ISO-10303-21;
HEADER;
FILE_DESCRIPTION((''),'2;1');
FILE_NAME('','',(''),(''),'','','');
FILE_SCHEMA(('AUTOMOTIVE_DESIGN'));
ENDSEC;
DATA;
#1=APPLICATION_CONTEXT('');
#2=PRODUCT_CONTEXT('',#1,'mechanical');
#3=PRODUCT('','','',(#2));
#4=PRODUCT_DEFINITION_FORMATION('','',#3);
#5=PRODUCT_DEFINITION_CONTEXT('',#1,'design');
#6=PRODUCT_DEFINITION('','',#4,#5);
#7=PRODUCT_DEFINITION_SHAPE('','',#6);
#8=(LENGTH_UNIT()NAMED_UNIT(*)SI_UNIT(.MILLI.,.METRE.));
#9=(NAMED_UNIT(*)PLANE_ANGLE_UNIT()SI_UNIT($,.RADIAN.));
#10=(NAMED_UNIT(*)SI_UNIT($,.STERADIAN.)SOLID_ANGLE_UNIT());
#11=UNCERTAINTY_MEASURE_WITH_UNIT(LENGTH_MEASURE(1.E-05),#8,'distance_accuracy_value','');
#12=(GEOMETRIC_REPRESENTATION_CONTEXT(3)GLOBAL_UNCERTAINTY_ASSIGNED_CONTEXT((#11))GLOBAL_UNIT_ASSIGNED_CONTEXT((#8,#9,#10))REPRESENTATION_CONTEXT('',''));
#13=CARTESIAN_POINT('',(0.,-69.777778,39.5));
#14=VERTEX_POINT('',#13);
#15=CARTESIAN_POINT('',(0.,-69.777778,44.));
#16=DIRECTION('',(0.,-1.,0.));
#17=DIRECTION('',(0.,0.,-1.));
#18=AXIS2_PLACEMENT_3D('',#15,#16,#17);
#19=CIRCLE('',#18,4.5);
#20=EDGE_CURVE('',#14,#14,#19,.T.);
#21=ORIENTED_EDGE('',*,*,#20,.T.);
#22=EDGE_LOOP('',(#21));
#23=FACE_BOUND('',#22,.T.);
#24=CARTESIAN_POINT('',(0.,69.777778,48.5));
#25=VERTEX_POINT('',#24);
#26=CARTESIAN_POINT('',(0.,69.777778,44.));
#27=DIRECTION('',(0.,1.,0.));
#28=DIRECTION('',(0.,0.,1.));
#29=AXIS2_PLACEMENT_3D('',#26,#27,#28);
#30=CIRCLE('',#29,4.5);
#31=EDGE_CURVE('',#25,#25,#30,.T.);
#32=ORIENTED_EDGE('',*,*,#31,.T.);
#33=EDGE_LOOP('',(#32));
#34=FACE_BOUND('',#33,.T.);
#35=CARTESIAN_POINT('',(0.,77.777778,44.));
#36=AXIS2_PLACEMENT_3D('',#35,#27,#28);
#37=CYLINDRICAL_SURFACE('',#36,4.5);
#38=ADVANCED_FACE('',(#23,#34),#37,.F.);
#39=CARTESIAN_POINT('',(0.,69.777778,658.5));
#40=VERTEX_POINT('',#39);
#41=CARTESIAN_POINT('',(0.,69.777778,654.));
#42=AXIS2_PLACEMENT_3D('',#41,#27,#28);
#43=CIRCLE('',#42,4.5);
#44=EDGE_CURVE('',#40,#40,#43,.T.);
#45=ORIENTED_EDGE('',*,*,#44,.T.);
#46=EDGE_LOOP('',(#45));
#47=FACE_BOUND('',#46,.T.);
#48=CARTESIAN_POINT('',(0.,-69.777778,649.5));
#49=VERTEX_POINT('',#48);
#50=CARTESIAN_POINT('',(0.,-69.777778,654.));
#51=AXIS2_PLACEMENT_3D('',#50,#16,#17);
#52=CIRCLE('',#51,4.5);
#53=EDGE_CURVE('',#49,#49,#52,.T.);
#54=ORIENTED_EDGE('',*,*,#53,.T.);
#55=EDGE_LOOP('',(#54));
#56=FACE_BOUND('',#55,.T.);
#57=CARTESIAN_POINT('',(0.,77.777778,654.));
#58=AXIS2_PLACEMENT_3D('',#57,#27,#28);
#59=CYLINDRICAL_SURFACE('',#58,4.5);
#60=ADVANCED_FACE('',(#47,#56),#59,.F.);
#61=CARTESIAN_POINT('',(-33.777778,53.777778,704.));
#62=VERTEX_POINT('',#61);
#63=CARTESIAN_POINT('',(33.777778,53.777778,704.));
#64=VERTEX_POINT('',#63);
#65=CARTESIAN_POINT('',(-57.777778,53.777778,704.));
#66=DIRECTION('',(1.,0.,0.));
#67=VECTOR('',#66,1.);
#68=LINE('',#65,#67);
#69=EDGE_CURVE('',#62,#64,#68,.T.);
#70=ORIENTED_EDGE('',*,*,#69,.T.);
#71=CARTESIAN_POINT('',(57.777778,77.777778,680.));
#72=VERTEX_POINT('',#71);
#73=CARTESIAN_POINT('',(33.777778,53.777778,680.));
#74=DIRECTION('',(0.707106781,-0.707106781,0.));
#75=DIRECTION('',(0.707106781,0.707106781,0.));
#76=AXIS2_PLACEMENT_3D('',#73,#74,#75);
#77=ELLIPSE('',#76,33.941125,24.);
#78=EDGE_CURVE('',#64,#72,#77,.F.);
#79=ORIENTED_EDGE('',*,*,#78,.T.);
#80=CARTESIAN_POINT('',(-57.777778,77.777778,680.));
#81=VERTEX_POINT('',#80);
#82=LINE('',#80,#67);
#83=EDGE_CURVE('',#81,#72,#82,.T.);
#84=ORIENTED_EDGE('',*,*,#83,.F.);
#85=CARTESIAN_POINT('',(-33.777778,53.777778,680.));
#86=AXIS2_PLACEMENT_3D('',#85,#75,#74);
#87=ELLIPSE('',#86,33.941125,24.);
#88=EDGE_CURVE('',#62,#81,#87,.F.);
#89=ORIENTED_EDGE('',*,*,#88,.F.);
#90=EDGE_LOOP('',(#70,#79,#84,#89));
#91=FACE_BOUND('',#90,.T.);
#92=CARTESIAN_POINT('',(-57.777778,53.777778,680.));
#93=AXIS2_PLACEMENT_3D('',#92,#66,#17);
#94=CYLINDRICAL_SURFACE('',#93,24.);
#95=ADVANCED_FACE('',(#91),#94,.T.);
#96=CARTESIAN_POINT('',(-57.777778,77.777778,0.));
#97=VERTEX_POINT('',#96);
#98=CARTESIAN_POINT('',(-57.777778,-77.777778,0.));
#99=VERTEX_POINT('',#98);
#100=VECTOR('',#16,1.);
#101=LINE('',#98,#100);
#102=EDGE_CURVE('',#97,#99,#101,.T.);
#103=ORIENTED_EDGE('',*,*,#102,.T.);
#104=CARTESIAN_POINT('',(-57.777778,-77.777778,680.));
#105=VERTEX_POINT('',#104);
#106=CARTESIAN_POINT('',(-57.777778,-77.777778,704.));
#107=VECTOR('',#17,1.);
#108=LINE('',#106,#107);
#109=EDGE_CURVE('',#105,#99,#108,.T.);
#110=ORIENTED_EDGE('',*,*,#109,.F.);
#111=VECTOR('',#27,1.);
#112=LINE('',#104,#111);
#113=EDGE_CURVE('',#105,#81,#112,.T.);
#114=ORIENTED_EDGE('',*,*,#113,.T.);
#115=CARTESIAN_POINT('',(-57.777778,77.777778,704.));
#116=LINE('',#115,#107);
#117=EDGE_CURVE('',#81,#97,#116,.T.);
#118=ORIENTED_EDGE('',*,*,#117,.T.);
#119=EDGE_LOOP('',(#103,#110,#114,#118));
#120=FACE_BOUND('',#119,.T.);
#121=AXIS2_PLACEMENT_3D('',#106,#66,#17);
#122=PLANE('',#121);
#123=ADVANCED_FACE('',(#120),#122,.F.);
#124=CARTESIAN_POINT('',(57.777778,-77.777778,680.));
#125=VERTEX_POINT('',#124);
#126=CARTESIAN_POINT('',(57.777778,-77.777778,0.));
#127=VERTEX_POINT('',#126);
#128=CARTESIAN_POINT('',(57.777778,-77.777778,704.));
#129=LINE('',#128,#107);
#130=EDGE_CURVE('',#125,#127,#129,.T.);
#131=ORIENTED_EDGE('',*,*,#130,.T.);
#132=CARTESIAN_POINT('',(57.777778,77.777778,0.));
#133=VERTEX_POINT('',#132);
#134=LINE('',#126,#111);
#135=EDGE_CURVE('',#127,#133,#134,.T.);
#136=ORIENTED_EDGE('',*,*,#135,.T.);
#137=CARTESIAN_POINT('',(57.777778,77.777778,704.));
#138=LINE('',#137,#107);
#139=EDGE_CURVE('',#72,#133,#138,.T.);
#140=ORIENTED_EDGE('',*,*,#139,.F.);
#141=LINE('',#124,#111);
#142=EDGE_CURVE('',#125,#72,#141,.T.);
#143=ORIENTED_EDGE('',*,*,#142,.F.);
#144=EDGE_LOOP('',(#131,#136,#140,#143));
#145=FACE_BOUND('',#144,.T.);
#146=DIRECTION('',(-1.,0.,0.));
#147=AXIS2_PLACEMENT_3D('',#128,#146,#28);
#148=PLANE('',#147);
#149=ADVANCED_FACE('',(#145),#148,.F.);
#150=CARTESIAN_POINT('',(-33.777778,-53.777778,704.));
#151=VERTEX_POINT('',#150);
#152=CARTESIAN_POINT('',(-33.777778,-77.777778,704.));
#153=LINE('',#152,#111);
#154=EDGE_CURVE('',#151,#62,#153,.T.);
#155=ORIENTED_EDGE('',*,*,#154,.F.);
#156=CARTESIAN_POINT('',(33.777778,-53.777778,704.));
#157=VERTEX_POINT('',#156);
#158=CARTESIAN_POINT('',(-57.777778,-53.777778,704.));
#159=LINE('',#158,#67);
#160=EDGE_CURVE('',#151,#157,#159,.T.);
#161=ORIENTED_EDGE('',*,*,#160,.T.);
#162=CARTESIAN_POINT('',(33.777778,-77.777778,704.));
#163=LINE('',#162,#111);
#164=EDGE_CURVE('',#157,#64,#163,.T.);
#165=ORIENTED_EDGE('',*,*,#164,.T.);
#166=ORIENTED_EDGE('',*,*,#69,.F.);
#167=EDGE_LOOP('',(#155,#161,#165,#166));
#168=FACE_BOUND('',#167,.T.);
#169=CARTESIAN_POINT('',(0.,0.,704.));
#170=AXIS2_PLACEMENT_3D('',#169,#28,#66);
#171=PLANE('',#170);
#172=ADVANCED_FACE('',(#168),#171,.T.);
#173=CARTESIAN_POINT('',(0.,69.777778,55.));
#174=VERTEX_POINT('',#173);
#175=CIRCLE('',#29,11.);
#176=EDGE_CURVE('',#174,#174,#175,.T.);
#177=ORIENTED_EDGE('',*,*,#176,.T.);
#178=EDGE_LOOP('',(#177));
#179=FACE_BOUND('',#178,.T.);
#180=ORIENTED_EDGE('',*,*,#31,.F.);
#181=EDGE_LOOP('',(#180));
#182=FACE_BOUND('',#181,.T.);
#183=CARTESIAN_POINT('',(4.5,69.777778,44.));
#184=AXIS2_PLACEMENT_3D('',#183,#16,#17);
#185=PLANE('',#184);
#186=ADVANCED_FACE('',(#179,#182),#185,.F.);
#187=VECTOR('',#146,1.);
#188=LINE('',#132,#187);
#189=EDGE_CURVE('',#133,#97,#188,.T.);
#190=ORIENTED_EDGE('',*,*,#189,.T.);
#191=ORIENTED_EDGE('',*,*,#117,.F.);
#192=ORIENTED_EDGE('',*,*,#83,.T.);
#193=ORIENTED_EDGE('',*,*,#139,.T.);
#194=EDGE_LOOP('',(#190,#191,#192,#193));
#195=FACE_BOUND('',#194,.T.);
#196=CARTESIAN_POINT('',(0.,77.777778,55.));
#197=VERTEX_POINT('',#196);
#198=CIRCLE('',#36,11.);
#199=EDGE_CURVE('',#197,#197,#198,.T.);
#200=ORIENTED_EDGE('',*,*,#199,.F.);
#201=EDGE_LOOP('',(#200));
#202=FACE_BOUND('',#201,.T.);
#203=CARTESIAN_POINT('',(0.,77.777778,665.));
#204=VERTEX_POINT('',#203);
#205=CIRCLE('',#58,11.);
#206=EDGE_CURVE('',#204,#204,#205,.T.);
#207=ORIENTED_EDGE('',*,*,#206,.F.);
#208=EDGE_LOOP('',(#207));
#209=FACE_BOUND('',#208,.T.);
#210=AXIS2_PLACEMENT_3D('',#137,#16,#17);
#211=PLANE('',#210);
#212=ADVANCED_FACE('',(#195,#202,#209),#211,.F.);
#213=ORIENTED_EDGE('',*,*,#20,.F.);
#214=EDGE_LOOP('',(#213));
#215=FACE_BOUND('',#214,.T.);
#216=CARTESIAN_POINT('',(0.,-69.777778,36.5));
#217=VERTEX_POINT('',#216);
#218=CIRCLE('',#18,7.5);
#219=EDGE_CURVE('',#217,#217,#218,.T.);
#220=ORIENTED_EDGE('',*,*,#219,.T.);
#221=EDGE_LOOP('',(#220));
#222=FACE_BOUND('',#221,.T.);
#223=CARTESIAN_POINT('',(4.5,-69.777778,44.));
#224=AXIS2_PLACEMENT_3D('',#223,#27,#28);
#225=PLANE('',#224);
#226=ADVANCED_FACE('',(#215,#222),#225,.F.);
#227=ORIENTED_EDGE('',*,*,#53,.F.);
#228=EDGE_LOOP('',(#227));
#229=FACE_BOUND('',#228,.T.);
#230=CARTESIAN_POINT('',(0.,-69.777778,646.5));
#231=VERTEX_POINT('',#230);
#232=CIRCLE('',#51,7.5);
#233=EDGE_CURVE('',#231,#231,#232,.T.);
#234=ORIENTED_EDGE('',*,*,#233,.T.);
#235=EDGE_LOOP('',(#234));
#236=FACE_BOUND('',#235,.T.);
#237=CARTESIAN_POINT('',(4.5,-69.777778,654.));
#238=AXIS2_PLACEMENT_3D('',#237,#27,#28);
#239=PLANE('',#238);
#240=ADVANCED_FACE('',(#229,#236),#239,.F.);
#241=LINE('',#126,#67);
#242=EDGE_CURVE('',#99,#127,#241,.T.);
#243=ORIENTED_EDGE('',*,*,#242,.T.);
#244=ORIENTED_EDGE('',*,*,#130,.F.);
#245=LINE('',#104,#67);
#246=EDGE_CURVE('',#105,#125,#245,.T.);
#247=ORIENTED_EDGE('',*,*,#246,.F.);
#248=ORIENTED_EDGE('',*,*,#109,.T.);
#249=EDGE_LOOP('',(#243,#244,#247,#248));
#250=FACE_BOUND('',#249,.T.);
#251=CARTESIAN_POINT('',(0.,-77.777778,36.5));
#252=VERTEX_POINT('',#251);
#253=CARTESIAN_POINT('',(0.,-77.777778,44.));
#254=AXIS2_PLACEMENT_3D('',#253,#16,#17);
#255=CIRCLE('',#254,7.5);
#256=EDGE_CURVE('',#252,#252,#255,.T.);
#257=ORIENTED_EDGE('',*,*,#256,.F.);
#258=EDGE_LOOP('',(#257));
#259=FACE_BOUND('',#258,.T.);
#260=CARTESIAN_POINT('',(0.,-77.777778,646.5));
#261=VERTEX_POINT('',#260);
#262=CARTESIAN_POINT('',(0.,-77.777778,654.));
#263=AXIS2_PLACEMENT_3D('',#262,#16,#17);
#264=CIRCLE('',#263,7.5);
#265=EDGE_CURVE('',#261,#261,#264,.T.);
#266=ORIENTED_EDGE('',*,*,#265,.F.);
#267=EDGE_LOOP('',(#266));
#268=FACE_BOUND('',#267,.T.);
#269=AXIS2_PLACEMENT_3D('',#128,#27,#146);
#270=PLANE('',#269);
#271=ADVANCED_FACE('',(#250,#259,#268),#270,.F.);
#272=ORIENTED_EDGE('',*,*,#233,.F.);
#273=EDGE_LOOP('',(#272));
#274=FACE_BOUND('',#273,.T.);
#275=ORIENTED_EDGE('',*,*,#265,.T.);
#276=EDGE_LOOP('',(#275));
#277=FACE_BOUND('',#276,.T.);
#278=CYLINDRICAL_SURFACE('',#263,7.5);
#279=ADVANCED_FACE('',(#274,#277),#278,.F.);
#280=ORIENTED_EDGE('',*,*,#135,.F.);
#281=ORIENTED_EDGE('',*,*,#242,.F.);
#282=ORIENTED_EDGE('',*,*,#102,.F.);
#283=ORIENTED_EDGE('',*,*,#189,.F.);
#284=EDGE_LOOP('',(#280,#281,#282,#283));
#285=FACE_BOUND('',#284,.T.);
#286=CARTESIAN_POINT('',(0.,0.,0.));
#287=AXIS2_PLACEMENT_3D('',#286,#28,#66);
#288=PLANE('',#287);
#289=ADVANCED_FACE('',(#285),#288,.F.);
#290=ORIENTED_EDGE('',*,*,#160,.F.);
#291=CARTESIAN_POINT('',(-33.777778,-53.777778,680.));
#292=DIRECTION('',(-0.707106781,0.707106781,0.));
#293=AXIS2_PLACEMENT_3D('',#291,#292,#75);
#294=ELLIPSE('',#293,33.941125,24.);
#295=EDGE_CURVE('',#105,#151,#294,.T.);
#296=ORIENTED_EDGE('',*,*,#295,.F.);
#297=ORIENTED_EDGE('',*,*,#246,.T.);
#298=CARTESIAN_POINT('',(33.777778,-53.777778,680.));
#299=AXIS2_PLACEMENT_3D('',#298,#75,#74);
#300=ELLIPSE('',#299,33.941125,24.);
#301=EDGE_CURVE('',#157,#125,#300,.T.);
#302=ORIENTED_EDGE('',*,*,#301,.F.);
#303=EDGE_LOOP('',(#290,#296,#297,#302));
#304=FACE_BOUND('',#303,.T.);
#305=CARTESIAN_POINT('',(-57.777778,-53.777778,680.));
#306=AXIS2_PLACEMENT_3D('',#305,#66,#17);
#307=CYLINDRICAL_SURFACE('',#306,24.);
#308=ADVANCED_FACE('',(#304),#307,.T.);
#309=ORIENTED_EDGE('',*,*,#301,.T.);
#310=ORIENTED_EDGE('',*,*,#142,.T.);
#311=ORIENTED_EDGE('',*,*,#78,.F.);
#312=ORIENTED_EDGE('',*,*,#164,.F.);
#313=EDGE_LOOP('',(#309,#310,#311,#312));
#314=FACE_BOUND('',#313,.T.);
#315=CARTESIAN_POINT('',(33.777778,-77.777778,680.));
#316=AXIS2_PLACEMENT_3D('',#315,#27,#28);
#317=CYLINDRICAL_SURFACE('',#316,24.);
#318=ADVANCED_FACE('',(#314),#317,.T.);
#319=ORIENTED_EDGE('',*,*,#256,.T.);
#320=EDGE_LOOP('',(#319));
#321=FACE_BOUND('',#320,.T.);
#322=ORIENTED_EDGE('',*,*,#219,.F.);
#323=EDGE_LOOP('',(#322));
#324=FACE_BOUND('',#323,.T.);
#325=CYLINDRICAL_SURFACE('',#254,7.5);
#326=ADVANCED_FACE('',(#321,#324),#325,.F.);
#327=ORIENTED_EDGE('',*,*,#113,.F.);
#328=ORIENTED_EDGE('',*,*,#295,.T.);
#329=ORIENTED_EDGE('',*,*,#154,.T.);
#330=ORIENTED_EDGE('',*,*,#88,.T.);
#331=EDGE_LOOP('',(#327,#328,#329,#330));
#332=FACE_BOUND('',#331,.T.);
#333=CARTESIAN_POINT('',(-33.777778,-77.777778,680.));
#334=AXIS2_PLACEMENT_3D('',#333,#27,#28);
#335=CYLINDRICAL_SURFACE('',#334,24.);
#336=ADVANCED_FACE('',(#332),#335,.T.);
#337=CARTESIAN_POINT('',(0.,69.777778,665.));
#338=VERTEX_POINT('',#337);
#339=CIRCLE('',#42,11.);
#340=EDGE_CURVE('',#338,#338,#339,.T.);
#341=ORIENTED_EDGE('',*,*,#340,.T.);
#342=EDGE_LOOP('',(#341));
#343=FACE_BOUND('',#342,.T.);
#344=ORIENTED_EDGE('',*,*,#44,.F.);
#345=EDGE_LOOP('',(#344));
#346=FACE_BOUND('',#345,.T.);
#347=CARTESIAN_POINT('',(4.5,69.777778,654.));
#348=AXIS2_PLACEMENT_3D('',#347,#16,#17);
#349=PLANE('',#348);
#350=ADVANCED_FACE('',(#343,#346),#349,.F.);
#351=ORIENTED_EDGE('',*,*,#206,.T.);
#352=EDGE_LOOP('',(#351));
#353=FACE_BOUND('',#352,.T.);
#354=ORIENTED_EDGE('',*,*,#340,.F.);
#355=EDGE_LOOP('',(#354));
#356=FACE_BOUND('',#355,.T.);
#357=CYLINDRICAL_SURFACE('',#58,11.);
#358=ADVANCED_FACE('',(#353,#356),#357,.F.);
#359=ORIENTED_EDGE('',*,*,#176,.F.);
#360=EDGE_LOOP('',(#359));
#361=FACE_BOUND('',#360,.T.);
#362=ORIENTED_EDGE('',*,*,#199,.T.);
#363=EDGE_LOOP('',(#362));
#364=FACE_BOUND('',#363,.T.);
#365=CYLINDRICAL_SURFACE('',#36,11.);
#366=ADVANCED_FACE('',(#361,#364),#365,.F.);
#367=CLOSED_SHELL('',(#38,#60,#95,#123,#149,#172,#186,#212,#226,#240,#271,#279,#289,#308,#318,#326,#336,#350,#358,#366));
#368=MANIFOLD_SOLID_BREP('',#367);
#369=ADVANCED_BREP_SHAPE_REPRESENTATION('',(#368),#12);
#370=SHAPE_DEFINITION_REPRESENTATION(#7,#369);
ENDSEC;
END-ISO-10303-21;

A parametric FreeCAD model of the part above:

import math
import FreeCAD as App
import Part
import Sketcher
from FreeCAD import Vector
Q = App.Units.Quantity


def add_polygon(sketch, points):
    """Adds a closed chain of lines whose ends are joined by coincident constraints."""
    first, n = sketch.GeometryCount, len(points)
    for a, b in zip(points, points[1:] + points[:1]):
        sketch.addGeometry(Part.LineSegment(App.Vector(*a, 0), App.Vector(*b, 0)), False)
    for i in range(n):
        sketch.addConstraint(Sketcher.Constraint("Coincident", first + i, 2, first + (i + 1) % n, 1))

doc = App.newDocument("Part")
body = doc.addObject("PartDesign::Body", "Body")

# Sketch on XY plane
sketch1 = body.newObject("Sketcher::SketchObject", "Sketch")
sketch1.AttachmentSupport = (doc.getObject("XY_Plane"), [""])
sketch1.MapMode = "FlatFace"
add_polygon(sketch1, [(-58, 78), (-58, -78), (58, -78), (58, 78)])  # lines 0-3
sketch1.addConstraint(Sketcher.Constraint("Vertical", 0))
sketch1.addConstraint(Sketcher.Constraint("Horizontal", 1))
sketch1.addConstraint(Sketcher.Constraint("Vertical", 2))
sketch1.addConstraint(Sketcher.Constraint("Horizontal", 3))
sketch1.addConstraint(Sketcher.Constraint("Symmetric", 0, 2, 2, 2, -1, 1))
sketch1.addConstraint(Sketcher.Constraint("DistanceX", 1, 1, 1, 2, Q("115.555556 mm")))
sketch1.addConstraint(Sketcher.Constraint("DistanceY", 0, 2, 0, 1, Q("155.555556 mm")))
pad1 = body.newObject("PartDesign::Pad", "Pad")
pad1.Profile = sketch1
pad1.Length = 704

# Sketch on YZ plane
sketch2 = body.newObject("Sketcher::SketchObject", "Sketch001")
sketch2.AttachmentSupport = (doc.getObject("YZ_Plane"), [""])
sketch2.MapMode = "FlatFace"
sketch2.AttachmentOffset = App.Placement(Vector(0, 0, 57.777778), App.Rotation())
sketch2.addGeometry(Part.LineSegment(Vector(78, 704, 0), Vector(54, 704, 0)), False)
sketch2.addGeometry(Part.ArcOfCircle(Part.Circle(Vector(54, 680, 0), Vector(0, 0, 1), 24), math.radians(0), math.radians(90)), False)
sketch2.addGeometry(Part.LineSegment(Vector(78, 680, 0), Vector(78, 704, 0)), False)
sketch2.addConstraint(Sketcher.Constraint("Tangent", 0, 2, 1, 2))
sketch2.addConstraint(Sketcher.Constraint("Tangent", 1, 1, 2, 1))
sketch2.addConstraint(Sketcher.Constraint("Coincident", 2, 2, 0, 1))
sketch2.addConstraint(Sketcher.Constraint("Horizontal", 0))
sketch2.addConstraint(Sketcher.Constraint("Vertical", 2))
sketch2.addConstraint(Sketcher.Constraint("Radius", 1, Q("24 mm")))
sketch2.addConstraint(Sketcher.Constraint("DistanceY", -1, 1, 1, 3, Q("680 mm")))
sketch2.addConstraint(Sketcher.Constraint("DistanceX", -1, 1, 1, 3, Q("53.777778 mm")))
pocket1 = body.newObject("PartDesign::Pocket", "Pocket")
pocket1.Profile = sketch2
pocket1.Type = "ThroughAll"

# Sketch on XZ plane
sketch3 = body.newObject("Sketcher::SketchObject", "Sketch002")
sketch3.AttachmentSupport = (doc.getObject("XZ_Plane"), [""])
sketch3.MapMode = "FlatFace"
sketch3.AttachmentOffset = App.Placement(Vector(0, 0, -77.777778), App.Rotation())
sketch3.addGeometry(Part.LineSegment(Vector(-58, 680, 0), Vector(-58, 704, 0)), False)
sketch3.addGeometry(Part.LineSegment(Vector(-58, 704, 0), Vector(-34, 704, 0)), False)
sketch3.addGeometry(Part.ArcOfCircle(Part.Circle(Vector(-34, 680, 0), Vector(0, 0, 1), 24), math.radians(90), math.radians(180)), False)
sketch3.addConstraint(Sketcher.Constraint("Coincident", 0, 2, 1, 1))
sketch3.addConstraint(Sketcher.Constraint("Tangent", 1, 2, 2, 1))
sketch3.addConstraint(Sketcher.Constraint("Tangent", 2, 2, 0, 1))
sketch3.addConstraint(Sketcher.Constraint("Vertical", 0))
sketch3.addConstraint(Sketcher.Constraint("Horizontal", 1))
sketch3.addConstraint(Sketcher.Constraint("Radius", 2, Q("24 mm")))
sketch3.addConstraint(Sketcher.Constraint("DistanceY", -1, 1, 2, 3, Q("680 mm")))
sketch3.addConstraint(Sketcher.Constraint("DistanceX", 2, 3, -1, 1, Q("33.777778 mm")))
pocket2 = body.newObject("PartDesign::Pocket", "Pocket001")
pocket2.Profile = sketch3
pocket2.Type = "ThroughAll"
pocket2.Reversed = True
doc.recompute()

mirrored = body.newObject("PartDesign::Mirrored", "Mirrored")
mirrored.Originals = [pocket1]
mirrored.MirrorPlane = (doc.getObject("XZ_Plane"), [""])
body.Tip = mirrored
doc.recompute()

mirrored2 = body.newObject("PartDesign::Mirrored", "Mirrored001")
mirrored2.Originals = [pocket2]
mirrored2.MirrorPlane = (doc.getObject("YZ_Plane"), [""])
body.Tip = mirrored2

# Sketch on YZ plane
sketch4 = body.newObject("Sketcher::SketchObject", "Sketch003")
sketch4.AttachmentSupport = (doc.getObject("YZ_Plane"), [""])
sketch4.MapMode = "FlatFace"
sketch4.AttachmentOffset = App.Placement(Vector(0, 0, -57.777778), App.Rotation())
sketch4.addGeometry(Part.LineSegment(Vector(-78, 704, 0), Vector(-54, 704, 0)), False)
sketch4.addGeometry(Part.ArcOfCircle(Part.Circle(Vector(-54, 680, 0), Vector(0, 0, 1), 24), math.radians(90), math.radians(180)), False)
sketch4.addGeometry(Part.LineSegment(Vector(-78, 680, 0), Vector(-78, 704, 0)), False)
sketch4.addConstraint(Sketcher.Constraint("Tangent", 0, 2, 1, 1))
sketch4.addConstraint(Sketcher.Constraint("Tangent", 1, 2, 2, 1))
sketch4.addConstraint(Sketcher.Constraint("Coincident", 2, 2, 0, 1))
sketch4.addConstraint(Sketcher.Constraint("Horizontal", 0))
sketch4.addConstraint(Sketcher.Constraint("Vertical", 2))
sketch4.addConstraint(Sketcher.Constraint("Radius", 1, Q("24 mm")))
sketch4.addConstraint(Sketcher.Constraint("DistanceY", -1, 1, 1, 3, Q("680 mm")))
sketch4.addConstraint(Sketcher.Constraint("DistanceX", 1, 3, -1, 1, Q("53.777778 mm")))
pocket3 = body.newObject("PartDesign::Pocket", "Pocket002")
pocket3.Profile = sketch4
pocket3.Type = "ThroughAll"
pocket3.Reversed = True

# Sketch on YZ plane
sketch5 = body.newObject("Sketcher::SketchObject", "Sketch004")
sketch5.AttachmentSupport = (doc.getObject("YZ_Plane"), [""])
sketch5.MapMode = "FlatFace"
sketch5.AttachmentOffset = App.Placement(Vector(0, 0, -57.777778), App.Rotation())
sketch5.addGeometry(Part.LineSegment(Vector(54, 704, 0), Vector(78, 704, 0)), False)
sketch5.addGeometry(Part.LineSegment(Vector(78, 704, 0), Vector(78, 680, 0)), False)
sketch5.addGeometry(Part.ArcOfCircle(Part.Circle(Vector(54, 680, 0), Vector(0, 0, 1), 24), math.radians(0), math.radians(90)), False)
sketch5.addConstraint(Sketcher.Constraint("Coincident", 0, 2, 1, 1))
sketch5.addConstraint(Sketcher.Constraint("Tangent", 1, 2, 2, 1))
sketch5.addConstraint(Sketcher.Constraint("Tangent", 2, 2, 0, 1))
sketch5.addConstraint(Sketcher.Constraint("Horizontal", 0))
sketch5.addConstraint(Sketcher.Constraint("Vertical", 1))
sketch5.addConstraint(Sketcher.Constraint("Radius", 2, Q("24 mm")))
sketch5.addConstraint(Sketcher.Constraint("DistanceY", -1, 1, 2, 3, Q("680 mm")))
sketch5.addConstraint(Sketcher.Constraint("DistanceX", -1, 1, 2, 3, Q("53.777778 mm")))
pocket4 = body.newObject("PartDesign::Pocket", "Pocket003")
pocket4.Profile = sketch5
pocket4.Type = "ThroughAll"
pocket4.Reversed = True

# Sketch on XZ plane
sketch6 = body.newObject("Sketcher::SketchObject", "Sketch005")
sketch6.AttachmentSupport = (doc.getObject("XZ_Plane"), [""])
sketch6.MapMode = "FlatFace"
sketch6.AttachmentOffset = App.Placement(Vector(0, 0, -77.777778), App.Rotation())
sketch6.addGeometry(Part.Circle(Vector(0, 654, 0), Vector(0, 0, 1), 4.5), False)
sketch6.addGeometry(Part.Circle(Vector(0, 44, 0), Vector(0, 0, 1), 4.5), False)
sketch6.addConstraint(Sketcher.Constraint("Equal", 0, 1))
sketch6.addConstraint(Sketcher.Constraint("PointOnObject", 0, 3, -2))
sketch6.addConstraint(Sketcher.Constraint("PointOnObject", 1, 3, -2))
sketch6.addConstraint(Sketcher.Constraint("Diameter", 0, Q("9 mm")))
sketch6.addConstraint(Sketcher.Constraint("DistanceY", -1, 1, 0, 3, Q("654 mm")))
sketch6.addConstraint(Sketcher.Constraint("DistanceY", -1, 1, 1, 3, Q("44 mm")))
doc.recompute()
hole = body.newObject("PartDesign::Hole", "Hole")
hole.Profile = sketch6
hole.ThreadType = "None"
hole.Diameter = 9
hole.DepthType = "ThroughAll"
hole.HoleCutType = "Counterbore"
hole.HoleCutDiameter = 22
hole.HoleCutDepth = 8
hole.Reversed = True

# Sketch on XZ plane
sketch7 = body.newObject("Sketcher::SketchObject", "Sketch006")
sketch7.AttachmentSupport = (doc.getObject("XZ_Plane"), [""])
sketch7.MapMode = "FlatFace"
sketch7.AttachmentOffset = App.Placement(Vector(0, 0, 77.777778), App.Rotation())
sketch7.addGeometry(Part.Circle(Vector(0, 654, 0), Vector(0, 0, 1), 4.5), False)
sketch7.addGeometry(Part.Circle(Vector(0, 44, 0), Vector(0, 0, 1), 4.5), False)
sketch7.addConstraint(Sketcher.Constraint("Equal", 0, 1))
sketch7.addConstraint(Sketcher.Constraint("PointOnObject", 0, 3, -2))
sketch7.addConstraint(Sketcher.Constraint("PointOnObject", 1, 3, -2))
sketch7.addConstraint(Sketcher.Constraint("Diameter", 0, Q("9 mm")))
sketch7.addConstraint(Sketcher.Constraint("DistanceY", -1, 1, 0, 3, Q("654 mm")))
sketch7.addConstraint(Sketcher.Constraint("DistanceY", -1, 1, 1, 3, Q("44 mm")))
doc.recompute()
hole2 = body.newObject("PartDesign::Hole", "Hole001")
hole2.Profile = sketch7
hole2.ThreadType = "None"
hole2.Diameter = 9
hole2.DepthType = "ThroughAll"
hole2.HoleCutType = "Counterbore"
hole2.HoleCutDiameter = 15
hole2.HoleCutDepth = 8

doc.recompute()
